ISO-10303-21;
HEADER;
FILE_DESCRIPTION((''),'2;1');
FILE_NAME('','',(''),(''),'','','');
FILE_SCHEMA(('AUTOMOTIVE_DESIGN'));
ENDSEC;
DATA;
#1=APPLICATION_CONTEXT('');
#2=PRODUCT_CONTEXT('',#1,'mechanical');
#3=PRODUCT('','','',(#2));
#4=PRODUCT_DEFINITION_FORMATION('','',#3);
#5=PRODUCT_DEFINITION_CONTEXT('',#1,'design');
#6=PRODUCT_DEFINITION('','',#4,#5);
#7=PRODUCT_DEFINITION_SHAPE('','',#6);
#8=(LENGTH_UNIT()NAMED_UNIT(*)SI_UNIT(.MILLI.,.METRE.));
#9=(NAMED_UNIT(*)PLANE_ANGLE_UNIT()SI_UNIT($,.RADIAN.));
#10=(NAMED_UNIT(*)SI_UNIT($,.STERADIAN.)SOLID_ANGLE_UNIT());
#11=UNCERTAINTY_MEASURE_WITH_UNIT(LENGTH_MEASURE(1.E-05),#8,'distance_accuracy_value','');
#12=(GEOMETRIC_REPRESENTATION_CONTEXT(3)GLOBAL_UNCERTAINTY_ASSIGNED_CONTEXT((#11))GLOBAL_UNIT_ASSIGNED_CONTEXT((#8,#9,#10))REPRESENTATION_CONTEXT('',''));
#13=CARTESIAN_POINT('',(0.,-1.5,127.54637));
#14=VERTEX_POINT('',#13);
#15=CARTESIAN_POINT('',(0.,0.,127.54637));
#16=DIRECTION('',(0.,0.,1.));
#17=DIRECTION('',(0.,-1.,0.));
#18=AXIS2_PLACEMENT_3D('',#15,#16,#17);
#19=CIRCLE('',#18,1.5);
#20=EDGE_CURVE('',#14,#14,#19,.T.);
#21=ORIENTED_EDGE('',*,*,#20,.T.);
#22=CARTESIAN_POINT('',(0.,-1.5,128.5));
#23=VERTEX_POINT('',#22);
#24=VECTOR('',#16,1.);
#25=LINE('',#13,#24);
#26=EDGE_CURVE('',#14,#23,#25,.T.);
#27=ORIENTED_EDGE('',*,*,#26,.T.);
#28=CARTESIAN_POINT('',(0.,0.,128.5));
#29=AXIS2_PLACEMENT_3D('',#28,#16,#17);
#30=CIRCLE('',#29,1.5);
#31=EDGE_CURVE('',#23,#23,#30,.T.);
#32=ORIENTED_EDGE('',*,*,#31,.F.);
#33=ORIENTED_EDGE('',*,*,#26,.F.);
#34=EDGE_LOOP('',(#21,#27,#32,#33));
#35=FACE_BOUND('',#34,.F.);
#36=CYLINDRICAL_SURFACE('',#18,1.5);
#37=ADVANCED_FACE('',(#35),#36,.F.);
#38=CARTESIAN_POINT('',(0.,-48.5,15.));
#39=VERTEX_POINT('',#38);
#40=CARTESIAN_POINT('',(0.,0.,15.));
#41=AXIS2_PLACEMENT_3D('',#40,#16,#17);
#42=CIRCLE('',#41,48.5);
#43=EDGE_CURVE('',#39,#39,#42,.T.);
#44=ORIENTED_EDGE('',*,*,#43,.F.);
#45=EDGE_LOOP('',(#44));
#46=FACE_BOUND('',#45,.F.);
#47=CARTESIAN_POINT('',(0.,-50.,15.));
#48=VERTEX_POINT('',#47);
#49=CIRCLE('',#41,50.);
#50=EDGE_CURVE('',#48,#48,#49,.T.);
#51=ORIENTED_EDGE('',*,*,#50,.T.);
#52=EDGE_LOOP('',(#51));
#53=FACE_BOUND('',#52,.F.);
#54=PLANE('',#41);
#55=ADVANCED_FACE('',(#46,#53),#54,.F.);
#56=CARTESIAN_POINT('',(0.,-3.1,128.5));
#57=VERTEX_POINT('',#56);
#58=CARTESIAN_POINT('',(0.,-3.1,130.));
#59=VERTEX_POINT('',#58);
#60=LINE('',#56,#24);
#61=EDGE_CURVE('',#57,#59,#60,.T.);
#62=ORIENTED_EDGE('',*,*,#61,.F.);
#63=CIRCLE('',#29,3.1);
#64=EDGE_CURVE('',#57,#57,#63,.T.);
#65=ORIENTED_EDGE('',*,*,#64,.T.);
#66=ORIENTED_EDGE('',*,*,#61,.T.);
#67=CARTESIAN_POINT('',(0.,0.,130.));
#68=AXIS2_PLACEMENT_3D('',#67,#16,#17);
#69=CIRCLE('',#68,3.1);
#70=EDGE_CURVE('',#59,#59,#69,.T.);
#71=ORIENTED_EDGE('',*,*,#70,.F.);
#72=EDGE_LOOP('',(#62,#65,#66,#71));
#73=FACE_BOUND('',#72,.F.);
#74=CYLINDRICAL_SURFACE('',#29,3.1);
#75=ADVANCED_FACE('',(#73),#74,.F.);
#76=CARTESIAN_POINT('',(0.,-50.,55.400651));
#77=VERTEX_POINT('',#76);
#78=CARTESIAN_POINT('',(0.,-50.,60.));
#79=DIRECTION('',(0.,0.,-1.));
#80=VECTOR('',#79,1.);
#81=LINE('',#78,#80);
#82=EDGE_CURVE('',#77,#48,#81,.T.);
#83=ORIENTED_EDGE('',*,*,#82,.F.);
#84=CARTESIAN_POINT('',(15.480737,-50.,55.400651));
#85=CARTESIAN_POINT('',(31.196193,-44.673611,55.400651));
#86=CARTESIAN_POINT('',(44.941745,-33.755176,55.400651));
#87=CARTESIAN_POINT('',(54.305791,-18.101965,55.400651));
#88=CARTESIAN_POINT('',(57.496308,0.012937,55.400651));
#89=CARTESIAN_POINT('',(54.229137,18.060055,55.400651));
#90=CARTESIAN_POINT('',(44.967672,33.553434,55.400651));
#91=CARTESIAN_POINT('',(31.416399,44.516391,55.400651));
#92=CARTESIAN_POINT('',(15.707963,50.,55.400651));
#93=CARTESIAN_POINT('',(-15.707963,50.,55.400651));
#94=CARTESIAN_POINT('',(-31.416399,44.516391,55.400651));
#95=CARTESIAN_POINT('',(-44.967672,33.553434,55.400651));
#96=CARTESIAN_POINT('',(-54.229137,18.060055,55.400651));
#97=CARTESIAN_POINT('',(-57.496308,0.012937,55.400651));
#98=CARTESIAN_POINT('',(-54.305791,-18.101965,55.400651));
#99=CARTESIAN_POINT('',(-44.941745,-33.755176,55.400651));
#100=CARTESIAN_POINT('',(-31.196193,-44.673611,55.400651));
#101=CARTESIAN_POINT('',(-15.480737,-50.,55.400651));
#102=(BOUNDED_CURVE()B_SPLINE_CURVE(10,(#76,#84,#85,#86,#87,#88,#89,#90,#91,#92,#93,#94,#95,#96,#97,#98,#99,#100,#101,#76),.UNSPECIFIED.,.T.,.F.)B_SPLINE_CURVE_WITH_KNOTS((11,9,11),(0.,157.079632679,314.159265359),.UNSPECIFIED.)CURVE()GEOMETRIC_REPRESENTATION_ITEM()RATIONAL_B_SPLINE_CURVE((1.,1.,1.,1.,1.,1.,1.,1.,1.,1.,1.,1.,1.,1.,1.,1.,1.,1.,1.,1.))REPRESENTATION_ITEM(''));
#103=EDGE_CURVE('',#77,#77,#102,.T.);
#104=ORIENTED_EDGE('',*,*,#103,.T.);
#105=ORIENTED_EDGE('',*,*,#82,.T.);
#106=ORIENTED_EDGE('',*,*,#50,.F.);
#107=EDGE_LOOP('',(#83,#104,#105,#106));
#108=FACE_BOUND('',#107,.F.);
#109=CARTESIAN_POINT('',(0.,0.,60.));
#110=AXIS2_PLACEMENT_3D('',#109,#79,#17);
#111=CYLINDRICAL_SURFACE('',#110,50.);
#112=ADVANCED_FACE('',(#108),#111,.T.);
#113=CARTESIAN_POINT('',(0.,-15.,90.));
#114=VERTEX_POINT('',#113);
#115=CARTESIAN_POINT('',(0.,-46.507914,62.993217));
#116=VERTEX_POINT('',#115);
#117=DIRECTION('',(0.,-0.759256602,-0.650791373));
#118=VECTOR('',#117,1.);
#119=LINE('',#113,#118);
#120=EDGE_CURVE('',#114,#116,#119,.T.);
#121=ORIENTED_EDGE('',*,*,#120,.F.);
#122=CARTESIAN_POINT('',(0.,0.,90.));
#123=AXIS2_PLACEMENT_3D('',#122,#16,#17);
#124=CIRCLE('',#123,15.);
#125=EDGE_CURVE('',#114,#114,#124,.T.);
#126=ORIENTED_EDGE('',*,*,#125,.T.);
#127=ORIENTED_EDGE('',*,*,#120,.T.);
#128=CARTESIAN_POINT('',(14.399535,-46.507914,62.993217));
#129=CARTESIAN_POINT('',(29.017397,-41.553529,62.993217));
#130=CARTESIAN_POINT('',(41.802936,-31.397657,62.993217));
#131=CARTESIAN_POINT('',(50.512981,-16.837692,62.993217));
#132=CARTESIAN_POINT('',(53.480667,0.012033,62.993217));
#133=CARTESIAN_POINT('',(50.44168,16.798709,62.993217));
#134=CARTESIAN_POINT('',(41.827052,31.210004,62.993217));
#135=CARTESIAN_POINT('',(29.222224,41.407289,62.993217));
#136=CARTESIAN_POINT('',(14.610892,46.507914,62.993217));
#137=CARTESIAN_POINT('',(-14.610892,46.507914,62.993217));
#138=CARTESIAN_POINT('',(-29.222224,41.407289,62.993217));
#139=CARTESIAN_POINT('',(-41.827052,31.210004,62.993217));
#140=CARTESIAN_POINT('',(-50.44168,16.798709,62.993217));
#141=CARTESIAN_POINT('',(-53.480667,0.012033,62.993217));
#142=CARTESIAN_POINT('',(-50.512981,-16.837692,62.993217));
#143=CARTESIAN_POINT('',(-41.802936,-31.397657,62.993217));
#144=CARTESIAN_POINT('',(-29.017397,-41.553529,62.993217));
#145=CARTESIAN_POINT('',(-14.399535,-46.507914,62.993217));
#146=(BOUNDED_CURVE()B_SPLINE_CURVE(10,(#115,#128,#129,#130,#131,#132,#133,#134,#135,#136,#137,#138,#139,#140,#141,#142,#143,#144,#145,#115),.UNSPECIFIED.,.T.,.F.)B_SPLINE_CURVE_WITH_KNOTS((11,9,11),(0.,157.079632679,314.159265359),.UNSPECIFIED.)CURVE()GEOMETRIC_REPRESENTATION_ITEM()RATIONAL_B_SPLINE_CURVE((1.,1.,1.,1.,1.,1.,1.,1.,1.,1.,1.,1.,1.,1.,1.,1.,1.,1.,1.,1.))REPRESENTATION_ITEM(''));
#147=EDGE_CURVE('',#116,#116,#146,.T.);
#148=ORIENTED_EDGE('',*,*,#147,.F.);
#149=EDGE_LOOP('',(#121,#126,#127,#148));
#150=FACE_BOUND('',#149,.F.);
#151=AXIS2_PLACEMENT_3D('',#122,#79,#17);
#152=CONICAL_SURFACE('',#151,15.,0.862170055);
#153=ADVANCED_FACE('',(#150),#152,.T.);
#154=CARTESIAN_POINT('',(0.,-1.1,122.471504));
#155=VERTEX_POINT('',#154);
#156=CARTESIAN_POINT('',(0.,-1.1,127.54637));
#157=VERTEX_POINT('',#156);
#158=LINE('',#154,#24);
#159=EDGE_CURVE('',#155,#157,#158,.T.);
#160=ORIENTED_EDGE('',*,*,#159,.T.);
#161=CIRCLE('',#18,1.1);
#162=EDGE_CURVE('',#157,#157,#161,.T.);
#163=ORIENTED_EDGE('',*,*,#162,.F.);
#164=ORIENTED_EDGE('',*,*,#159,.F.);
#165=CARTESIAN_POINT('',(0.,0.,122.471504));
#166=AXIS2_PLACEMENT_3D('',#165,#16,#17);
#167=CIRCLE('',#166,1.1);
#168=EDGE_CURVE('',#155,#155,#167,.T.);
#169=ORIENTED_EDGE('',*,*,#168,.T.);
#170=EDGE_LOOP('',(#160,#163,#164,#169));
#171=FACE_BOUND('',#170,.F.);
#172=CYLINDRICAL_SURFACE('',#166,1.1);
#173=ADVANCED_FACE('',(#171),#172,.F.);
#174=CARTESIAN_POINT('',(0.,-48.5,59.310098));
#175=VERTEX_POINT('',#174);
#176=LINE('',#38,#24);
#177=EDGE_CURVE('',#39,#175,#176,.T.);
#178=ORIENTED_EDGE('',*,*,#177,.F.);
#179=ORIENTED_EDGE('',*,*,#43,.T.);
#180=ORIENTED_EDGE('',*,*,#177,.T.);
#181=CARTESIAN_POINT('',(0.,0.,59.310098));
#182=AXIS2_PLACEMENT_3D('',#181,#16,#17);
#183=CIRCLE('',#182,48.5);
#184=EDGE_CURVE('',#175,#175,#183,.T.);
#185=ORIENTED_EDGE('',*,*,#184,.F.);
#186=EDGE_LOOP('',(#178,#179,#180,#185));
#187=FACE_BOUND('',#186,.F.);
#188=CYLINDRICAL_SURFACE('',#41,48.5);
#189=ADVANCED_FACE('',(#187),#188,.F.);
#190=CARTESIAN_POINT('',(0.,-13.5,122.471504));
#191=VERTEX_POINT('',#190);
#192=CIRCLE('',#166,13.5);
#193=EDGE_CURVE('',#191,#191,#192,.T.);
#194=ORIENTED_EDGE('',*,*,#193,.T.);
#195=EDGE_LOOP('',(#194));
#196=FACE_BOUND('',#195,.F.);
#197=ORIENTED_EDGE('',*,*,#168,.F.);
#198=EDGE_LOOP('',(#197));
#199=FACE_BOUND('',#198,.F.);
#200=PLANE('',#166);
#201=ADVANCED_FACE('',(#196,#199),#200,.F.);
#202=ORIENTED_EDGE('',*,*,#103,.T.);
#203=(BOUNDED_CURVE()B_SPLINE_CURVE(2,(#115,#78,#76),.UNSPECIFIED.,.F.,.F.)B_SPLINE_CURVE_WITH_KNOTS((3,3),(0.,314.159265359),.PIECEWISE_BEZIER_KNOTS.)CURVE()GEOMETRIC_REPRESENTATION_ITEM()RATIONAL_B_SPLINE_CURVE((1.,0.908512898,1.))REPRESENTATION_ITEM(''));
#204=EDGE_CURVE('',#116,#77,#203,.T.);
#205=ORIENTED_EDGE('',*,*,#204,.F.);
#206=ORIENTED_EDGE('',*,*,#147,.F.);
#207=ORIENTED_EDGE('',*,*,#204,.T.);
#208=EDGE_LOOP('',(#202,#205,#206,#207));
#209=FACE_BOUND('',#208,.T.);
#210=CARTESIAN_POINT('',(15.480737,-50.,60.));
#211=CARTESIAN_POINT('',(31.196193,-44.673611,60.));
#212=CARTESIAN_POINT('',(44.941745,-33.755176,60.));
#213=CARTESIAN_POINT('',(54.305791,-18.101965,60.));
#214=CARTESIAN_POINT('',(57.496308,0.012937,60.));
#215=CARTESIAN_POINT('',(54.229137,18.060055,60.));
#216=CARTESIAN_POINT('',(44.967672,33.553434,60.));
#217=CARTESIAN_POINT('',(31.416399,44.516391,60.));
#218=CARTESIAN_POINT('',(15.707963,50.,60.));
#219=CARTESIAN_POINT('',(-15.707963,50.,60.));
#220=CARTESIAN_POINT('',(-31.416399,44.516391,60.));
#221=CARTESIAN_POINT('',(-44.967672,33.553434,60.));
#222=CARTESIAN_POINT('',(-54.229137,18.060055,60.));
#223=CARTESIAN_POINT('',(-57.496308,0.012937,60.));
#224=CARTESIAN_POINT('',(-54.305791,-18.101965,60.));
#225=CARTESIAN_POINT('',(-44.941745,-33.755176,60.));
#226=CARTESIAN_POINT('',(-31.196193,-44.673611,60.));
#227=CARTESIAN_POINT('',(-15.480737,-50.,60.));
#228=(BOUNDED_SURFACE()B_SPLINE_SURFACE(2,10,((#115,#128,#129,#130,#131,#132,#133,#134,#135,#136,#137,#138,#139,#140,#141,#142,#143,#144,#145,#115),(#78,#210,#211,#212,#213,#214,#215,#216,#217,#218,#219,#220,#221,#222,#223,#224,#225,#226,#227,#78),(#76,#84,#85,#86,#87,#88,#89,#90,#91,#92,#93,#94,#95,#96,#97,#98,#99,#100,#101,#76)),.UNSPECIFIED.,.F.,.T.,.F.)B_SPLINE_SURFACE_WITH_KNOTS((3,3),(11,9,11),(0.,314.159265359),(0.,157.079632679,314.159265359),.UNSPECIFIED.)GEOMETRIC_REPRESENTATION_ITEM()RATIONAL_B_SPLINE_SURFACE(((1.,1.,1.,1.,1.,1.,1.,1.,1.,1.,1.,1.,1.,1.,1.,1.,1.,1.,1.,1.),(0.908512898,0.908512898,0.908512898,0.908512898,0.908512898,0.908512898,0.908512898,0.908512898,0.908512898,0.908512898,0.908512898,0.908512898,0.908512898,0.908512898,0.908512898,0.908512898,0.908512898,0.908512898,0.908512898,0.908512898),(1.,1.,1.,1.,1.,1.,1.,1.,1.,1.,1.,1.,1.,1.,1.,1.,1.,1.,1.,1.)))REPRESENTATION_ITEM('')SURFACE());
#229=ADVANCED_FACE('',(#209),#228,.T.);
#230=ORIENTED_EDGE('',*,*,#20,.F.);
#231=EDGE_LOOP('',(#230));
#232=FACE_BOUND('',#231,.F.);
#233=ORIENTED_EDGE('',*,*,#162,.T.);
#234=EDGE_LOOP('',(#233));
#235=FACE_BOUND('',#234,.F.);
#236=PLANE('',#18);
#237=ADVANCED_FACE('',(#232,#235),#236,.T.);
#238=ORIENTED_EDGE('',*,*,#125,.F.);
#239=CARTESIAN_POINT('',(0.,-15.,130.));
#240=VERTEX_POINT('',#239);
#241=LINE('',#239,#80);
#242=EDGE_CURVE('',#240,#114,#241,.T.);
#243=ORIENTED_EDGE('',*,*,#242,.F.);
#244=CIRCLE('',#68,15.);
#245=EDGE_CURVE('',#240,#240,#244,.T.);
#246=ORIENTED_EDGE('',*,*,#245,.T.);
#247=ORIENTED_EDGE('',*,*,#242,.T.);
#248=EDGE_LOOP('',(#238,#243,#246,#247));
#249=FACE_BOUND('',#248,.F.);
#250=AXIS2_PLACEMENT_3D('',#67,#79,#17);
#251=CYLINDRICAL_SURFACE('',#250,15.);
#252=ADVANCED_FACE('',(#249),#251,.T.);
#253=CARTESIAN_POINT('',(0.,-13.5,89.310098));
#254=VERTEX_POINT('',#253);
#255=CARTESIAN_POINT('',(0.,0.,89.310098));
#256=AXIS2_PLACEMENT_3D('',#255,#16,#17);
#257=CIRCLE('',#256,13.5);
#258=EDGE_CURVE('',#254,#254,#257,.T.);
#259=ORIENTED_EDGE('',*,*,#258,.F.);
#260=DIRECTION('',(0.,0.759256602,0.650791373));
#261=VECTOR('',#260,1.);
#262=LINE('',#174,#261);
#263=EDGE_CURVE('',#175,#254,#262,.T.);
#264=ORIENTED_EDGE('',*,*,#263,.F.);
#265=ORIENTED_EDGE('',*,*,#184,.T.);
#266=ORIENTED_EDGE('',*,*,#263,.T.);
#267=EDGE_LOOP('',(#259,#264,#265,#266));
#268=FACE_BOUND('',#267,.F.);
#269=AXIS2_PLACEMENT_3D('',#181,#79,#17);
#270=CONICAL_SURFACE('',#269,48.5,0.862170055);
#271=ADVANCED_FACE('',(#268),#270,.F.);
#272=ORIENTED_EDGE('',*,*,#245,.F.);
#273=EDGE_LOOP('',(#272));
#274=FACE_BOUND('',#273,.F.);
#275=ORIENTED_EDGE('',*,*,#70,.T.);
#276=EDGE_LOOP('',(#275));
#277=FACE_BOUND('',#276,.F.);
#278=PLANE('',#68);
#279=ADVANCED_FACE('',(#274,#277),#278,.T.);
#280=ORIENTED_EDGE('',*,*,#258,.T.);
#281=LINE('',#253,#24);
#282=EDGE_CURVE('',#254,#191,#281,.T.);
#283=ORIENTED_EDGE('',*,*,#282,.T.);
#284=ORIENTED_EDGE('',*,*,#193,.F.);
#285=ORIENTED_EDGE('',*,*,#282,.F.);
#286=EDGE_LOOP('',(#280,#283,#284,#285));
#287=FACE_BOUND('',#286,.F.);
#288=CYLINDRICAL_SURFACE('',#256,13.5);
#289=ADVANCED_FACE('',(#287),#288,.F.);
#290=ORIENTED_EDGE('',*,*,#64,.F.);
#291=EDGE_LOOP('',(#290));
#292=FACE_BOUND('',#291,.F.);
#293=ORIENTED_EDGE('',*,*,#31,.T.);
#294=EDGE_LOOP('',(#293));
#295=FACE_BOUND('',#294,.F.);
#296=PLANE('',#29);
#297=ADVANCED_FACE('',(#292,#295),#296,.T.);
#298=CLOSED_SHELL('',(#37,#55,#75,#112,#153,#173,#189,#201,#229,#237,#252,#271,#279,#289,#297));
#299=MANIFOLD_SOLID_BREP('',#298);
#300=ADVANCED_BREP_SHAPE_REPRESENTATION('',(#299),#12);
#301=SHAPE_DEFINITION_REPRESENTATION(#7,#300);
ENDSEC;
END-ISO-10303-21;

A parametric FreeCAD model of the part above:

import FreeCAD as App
import Part
import Sketcher


def edges_at(feature, points):
    """Names of the edges that pass closest to the given points."""
    edges = feature.Shape.Edges
    near = lambda p: min(range(len(edges)), key=lambda i: edges[i].distToShape(Part.Vertex(*p))[0])
    return sorted({f"Edge{near(p) + 1}" for p in points})


def add_polygon(sketch, points):
    """Adds a closed chain of lines whose ends are joined by coincident constraints."""
    first, n = sketch.GeometryCount, len(points)
    for a, b in zip(points, points[1:] + points[:1]):
        sketch.addGeometry(Part.LineSegment(App.Vector(*a, 0), App.Vector(*b, 0)), False)
    for i in range(n):
        sketch.addConstraint(Sketcher.Constraint("Coincident", first + i, 2, first + (i + 1) % n, 1))

doc = App.newDocument("Part")
body = doc.addObject("PartDesign::Body", "Body")

# Sketch on YZ plane
sketch1 = body.newObject("Sketcher::SketchObject", "Sketch")
sketch1.AttachmentSupport = (doc.getObject("YZ_Plane"), [""])
sketch1.MapMode = "FlatFace"
add_polygon(sketch1, [(-50, 15), (-48.5, 15), (-48.5, 59.31), (-13.5, 89.31), (-13.5, 122.47), (-1.1, 122.47), (-1.1, 127.55), (-1.5, 127.55), (-1.5, 128.5), (-3.1, 128.5), (-3.1, 130), (-15, 130), (-15, 90), (-50, 60)])  # lines 0-13
sketch1.addConstraint([
    Sketcher.Constraint("Horizontal", 0),
    Sketcher.Constraint("Vertical", 1),
    Sketcher.Constraint("Vertical", 3),
    Sketcher.Constraint("Horizontal", 4),
    Sketcher.Constraint("Vertical", 5),
    Sketcher.Constraint("Horizontal", 6),
    Sketcher.Constraint("Vertical", 7),
    Sketcher.Constraint("Horizontal", 8),
    Sketcher.Constraint("Vertical", 9),
    Sketcher.Constraint("Horizontal", 10),
    Sketcher.Constraint("Vertical", 11),
    Sketcher.Constraint("Vertical", 13),
    Sketcher.Constraint("Parallel", 2, 12),
    Sketcher.Constraint("Equal", 0, 9),
    Sketcher.Constraint("Equal", 2, 12),
    Sketcher.Constraint("DistanceY", 11, 2, 11, 1, 40.0),
    Sketcher.Constraint("DistanceY", 13, 2, 13, 1, 45.0),
    Sketcher.Constraint("DistanceX", 0, 1, 0, 2, 1.5),
    Sketcher.Constraint("DistanceX", 4, 1, 4, 2, 12.4),
    Sketcher.Constraint("DistanceX", 6, 2, 6, 1, 0.4),
    Sketcher.Constraint("DistanceX", 8, 2, 8, 1, 1.6),
    Sketcher.Constraint("DistanceY", -1, 1, 0, 2, 15.0),
    Sketcher.Constraint("DistanceY", -1, 1, 9, 2, 130.0),
    Sketcher.Constraint("DistanceX", 10, 2, -1, 1, 15.0),
    Sketcher.Constraint("DistanceX", 12, 2, -1, 1, 50.0),
    Sketcher.Constraint("DistanceY", 1, 1, 1, 2, 44.310098),
    Sketcher.Constraint("DistanceY", 7, 1, 7, 2, 0.95363),
    Sketcher.Constraint("DistanceY", 3, 1, 3, 2, 33.161406),
])
revolution = body.newObject("PartDesign::Revolution", "Revolution")
revolution.Profile = sketch1
revolution.ReferenceAxis = (sketch1, ["V_Axis"])
revolution.Angle = 360
doc.recompute()

fillet = body.newObject("PartDesign::Fillet", "Fillet")
fillet.Base = (revolution, edges_at(revolution, [(0, 50, 60)]))
fillet.Radius = 10

doc.recompute()
